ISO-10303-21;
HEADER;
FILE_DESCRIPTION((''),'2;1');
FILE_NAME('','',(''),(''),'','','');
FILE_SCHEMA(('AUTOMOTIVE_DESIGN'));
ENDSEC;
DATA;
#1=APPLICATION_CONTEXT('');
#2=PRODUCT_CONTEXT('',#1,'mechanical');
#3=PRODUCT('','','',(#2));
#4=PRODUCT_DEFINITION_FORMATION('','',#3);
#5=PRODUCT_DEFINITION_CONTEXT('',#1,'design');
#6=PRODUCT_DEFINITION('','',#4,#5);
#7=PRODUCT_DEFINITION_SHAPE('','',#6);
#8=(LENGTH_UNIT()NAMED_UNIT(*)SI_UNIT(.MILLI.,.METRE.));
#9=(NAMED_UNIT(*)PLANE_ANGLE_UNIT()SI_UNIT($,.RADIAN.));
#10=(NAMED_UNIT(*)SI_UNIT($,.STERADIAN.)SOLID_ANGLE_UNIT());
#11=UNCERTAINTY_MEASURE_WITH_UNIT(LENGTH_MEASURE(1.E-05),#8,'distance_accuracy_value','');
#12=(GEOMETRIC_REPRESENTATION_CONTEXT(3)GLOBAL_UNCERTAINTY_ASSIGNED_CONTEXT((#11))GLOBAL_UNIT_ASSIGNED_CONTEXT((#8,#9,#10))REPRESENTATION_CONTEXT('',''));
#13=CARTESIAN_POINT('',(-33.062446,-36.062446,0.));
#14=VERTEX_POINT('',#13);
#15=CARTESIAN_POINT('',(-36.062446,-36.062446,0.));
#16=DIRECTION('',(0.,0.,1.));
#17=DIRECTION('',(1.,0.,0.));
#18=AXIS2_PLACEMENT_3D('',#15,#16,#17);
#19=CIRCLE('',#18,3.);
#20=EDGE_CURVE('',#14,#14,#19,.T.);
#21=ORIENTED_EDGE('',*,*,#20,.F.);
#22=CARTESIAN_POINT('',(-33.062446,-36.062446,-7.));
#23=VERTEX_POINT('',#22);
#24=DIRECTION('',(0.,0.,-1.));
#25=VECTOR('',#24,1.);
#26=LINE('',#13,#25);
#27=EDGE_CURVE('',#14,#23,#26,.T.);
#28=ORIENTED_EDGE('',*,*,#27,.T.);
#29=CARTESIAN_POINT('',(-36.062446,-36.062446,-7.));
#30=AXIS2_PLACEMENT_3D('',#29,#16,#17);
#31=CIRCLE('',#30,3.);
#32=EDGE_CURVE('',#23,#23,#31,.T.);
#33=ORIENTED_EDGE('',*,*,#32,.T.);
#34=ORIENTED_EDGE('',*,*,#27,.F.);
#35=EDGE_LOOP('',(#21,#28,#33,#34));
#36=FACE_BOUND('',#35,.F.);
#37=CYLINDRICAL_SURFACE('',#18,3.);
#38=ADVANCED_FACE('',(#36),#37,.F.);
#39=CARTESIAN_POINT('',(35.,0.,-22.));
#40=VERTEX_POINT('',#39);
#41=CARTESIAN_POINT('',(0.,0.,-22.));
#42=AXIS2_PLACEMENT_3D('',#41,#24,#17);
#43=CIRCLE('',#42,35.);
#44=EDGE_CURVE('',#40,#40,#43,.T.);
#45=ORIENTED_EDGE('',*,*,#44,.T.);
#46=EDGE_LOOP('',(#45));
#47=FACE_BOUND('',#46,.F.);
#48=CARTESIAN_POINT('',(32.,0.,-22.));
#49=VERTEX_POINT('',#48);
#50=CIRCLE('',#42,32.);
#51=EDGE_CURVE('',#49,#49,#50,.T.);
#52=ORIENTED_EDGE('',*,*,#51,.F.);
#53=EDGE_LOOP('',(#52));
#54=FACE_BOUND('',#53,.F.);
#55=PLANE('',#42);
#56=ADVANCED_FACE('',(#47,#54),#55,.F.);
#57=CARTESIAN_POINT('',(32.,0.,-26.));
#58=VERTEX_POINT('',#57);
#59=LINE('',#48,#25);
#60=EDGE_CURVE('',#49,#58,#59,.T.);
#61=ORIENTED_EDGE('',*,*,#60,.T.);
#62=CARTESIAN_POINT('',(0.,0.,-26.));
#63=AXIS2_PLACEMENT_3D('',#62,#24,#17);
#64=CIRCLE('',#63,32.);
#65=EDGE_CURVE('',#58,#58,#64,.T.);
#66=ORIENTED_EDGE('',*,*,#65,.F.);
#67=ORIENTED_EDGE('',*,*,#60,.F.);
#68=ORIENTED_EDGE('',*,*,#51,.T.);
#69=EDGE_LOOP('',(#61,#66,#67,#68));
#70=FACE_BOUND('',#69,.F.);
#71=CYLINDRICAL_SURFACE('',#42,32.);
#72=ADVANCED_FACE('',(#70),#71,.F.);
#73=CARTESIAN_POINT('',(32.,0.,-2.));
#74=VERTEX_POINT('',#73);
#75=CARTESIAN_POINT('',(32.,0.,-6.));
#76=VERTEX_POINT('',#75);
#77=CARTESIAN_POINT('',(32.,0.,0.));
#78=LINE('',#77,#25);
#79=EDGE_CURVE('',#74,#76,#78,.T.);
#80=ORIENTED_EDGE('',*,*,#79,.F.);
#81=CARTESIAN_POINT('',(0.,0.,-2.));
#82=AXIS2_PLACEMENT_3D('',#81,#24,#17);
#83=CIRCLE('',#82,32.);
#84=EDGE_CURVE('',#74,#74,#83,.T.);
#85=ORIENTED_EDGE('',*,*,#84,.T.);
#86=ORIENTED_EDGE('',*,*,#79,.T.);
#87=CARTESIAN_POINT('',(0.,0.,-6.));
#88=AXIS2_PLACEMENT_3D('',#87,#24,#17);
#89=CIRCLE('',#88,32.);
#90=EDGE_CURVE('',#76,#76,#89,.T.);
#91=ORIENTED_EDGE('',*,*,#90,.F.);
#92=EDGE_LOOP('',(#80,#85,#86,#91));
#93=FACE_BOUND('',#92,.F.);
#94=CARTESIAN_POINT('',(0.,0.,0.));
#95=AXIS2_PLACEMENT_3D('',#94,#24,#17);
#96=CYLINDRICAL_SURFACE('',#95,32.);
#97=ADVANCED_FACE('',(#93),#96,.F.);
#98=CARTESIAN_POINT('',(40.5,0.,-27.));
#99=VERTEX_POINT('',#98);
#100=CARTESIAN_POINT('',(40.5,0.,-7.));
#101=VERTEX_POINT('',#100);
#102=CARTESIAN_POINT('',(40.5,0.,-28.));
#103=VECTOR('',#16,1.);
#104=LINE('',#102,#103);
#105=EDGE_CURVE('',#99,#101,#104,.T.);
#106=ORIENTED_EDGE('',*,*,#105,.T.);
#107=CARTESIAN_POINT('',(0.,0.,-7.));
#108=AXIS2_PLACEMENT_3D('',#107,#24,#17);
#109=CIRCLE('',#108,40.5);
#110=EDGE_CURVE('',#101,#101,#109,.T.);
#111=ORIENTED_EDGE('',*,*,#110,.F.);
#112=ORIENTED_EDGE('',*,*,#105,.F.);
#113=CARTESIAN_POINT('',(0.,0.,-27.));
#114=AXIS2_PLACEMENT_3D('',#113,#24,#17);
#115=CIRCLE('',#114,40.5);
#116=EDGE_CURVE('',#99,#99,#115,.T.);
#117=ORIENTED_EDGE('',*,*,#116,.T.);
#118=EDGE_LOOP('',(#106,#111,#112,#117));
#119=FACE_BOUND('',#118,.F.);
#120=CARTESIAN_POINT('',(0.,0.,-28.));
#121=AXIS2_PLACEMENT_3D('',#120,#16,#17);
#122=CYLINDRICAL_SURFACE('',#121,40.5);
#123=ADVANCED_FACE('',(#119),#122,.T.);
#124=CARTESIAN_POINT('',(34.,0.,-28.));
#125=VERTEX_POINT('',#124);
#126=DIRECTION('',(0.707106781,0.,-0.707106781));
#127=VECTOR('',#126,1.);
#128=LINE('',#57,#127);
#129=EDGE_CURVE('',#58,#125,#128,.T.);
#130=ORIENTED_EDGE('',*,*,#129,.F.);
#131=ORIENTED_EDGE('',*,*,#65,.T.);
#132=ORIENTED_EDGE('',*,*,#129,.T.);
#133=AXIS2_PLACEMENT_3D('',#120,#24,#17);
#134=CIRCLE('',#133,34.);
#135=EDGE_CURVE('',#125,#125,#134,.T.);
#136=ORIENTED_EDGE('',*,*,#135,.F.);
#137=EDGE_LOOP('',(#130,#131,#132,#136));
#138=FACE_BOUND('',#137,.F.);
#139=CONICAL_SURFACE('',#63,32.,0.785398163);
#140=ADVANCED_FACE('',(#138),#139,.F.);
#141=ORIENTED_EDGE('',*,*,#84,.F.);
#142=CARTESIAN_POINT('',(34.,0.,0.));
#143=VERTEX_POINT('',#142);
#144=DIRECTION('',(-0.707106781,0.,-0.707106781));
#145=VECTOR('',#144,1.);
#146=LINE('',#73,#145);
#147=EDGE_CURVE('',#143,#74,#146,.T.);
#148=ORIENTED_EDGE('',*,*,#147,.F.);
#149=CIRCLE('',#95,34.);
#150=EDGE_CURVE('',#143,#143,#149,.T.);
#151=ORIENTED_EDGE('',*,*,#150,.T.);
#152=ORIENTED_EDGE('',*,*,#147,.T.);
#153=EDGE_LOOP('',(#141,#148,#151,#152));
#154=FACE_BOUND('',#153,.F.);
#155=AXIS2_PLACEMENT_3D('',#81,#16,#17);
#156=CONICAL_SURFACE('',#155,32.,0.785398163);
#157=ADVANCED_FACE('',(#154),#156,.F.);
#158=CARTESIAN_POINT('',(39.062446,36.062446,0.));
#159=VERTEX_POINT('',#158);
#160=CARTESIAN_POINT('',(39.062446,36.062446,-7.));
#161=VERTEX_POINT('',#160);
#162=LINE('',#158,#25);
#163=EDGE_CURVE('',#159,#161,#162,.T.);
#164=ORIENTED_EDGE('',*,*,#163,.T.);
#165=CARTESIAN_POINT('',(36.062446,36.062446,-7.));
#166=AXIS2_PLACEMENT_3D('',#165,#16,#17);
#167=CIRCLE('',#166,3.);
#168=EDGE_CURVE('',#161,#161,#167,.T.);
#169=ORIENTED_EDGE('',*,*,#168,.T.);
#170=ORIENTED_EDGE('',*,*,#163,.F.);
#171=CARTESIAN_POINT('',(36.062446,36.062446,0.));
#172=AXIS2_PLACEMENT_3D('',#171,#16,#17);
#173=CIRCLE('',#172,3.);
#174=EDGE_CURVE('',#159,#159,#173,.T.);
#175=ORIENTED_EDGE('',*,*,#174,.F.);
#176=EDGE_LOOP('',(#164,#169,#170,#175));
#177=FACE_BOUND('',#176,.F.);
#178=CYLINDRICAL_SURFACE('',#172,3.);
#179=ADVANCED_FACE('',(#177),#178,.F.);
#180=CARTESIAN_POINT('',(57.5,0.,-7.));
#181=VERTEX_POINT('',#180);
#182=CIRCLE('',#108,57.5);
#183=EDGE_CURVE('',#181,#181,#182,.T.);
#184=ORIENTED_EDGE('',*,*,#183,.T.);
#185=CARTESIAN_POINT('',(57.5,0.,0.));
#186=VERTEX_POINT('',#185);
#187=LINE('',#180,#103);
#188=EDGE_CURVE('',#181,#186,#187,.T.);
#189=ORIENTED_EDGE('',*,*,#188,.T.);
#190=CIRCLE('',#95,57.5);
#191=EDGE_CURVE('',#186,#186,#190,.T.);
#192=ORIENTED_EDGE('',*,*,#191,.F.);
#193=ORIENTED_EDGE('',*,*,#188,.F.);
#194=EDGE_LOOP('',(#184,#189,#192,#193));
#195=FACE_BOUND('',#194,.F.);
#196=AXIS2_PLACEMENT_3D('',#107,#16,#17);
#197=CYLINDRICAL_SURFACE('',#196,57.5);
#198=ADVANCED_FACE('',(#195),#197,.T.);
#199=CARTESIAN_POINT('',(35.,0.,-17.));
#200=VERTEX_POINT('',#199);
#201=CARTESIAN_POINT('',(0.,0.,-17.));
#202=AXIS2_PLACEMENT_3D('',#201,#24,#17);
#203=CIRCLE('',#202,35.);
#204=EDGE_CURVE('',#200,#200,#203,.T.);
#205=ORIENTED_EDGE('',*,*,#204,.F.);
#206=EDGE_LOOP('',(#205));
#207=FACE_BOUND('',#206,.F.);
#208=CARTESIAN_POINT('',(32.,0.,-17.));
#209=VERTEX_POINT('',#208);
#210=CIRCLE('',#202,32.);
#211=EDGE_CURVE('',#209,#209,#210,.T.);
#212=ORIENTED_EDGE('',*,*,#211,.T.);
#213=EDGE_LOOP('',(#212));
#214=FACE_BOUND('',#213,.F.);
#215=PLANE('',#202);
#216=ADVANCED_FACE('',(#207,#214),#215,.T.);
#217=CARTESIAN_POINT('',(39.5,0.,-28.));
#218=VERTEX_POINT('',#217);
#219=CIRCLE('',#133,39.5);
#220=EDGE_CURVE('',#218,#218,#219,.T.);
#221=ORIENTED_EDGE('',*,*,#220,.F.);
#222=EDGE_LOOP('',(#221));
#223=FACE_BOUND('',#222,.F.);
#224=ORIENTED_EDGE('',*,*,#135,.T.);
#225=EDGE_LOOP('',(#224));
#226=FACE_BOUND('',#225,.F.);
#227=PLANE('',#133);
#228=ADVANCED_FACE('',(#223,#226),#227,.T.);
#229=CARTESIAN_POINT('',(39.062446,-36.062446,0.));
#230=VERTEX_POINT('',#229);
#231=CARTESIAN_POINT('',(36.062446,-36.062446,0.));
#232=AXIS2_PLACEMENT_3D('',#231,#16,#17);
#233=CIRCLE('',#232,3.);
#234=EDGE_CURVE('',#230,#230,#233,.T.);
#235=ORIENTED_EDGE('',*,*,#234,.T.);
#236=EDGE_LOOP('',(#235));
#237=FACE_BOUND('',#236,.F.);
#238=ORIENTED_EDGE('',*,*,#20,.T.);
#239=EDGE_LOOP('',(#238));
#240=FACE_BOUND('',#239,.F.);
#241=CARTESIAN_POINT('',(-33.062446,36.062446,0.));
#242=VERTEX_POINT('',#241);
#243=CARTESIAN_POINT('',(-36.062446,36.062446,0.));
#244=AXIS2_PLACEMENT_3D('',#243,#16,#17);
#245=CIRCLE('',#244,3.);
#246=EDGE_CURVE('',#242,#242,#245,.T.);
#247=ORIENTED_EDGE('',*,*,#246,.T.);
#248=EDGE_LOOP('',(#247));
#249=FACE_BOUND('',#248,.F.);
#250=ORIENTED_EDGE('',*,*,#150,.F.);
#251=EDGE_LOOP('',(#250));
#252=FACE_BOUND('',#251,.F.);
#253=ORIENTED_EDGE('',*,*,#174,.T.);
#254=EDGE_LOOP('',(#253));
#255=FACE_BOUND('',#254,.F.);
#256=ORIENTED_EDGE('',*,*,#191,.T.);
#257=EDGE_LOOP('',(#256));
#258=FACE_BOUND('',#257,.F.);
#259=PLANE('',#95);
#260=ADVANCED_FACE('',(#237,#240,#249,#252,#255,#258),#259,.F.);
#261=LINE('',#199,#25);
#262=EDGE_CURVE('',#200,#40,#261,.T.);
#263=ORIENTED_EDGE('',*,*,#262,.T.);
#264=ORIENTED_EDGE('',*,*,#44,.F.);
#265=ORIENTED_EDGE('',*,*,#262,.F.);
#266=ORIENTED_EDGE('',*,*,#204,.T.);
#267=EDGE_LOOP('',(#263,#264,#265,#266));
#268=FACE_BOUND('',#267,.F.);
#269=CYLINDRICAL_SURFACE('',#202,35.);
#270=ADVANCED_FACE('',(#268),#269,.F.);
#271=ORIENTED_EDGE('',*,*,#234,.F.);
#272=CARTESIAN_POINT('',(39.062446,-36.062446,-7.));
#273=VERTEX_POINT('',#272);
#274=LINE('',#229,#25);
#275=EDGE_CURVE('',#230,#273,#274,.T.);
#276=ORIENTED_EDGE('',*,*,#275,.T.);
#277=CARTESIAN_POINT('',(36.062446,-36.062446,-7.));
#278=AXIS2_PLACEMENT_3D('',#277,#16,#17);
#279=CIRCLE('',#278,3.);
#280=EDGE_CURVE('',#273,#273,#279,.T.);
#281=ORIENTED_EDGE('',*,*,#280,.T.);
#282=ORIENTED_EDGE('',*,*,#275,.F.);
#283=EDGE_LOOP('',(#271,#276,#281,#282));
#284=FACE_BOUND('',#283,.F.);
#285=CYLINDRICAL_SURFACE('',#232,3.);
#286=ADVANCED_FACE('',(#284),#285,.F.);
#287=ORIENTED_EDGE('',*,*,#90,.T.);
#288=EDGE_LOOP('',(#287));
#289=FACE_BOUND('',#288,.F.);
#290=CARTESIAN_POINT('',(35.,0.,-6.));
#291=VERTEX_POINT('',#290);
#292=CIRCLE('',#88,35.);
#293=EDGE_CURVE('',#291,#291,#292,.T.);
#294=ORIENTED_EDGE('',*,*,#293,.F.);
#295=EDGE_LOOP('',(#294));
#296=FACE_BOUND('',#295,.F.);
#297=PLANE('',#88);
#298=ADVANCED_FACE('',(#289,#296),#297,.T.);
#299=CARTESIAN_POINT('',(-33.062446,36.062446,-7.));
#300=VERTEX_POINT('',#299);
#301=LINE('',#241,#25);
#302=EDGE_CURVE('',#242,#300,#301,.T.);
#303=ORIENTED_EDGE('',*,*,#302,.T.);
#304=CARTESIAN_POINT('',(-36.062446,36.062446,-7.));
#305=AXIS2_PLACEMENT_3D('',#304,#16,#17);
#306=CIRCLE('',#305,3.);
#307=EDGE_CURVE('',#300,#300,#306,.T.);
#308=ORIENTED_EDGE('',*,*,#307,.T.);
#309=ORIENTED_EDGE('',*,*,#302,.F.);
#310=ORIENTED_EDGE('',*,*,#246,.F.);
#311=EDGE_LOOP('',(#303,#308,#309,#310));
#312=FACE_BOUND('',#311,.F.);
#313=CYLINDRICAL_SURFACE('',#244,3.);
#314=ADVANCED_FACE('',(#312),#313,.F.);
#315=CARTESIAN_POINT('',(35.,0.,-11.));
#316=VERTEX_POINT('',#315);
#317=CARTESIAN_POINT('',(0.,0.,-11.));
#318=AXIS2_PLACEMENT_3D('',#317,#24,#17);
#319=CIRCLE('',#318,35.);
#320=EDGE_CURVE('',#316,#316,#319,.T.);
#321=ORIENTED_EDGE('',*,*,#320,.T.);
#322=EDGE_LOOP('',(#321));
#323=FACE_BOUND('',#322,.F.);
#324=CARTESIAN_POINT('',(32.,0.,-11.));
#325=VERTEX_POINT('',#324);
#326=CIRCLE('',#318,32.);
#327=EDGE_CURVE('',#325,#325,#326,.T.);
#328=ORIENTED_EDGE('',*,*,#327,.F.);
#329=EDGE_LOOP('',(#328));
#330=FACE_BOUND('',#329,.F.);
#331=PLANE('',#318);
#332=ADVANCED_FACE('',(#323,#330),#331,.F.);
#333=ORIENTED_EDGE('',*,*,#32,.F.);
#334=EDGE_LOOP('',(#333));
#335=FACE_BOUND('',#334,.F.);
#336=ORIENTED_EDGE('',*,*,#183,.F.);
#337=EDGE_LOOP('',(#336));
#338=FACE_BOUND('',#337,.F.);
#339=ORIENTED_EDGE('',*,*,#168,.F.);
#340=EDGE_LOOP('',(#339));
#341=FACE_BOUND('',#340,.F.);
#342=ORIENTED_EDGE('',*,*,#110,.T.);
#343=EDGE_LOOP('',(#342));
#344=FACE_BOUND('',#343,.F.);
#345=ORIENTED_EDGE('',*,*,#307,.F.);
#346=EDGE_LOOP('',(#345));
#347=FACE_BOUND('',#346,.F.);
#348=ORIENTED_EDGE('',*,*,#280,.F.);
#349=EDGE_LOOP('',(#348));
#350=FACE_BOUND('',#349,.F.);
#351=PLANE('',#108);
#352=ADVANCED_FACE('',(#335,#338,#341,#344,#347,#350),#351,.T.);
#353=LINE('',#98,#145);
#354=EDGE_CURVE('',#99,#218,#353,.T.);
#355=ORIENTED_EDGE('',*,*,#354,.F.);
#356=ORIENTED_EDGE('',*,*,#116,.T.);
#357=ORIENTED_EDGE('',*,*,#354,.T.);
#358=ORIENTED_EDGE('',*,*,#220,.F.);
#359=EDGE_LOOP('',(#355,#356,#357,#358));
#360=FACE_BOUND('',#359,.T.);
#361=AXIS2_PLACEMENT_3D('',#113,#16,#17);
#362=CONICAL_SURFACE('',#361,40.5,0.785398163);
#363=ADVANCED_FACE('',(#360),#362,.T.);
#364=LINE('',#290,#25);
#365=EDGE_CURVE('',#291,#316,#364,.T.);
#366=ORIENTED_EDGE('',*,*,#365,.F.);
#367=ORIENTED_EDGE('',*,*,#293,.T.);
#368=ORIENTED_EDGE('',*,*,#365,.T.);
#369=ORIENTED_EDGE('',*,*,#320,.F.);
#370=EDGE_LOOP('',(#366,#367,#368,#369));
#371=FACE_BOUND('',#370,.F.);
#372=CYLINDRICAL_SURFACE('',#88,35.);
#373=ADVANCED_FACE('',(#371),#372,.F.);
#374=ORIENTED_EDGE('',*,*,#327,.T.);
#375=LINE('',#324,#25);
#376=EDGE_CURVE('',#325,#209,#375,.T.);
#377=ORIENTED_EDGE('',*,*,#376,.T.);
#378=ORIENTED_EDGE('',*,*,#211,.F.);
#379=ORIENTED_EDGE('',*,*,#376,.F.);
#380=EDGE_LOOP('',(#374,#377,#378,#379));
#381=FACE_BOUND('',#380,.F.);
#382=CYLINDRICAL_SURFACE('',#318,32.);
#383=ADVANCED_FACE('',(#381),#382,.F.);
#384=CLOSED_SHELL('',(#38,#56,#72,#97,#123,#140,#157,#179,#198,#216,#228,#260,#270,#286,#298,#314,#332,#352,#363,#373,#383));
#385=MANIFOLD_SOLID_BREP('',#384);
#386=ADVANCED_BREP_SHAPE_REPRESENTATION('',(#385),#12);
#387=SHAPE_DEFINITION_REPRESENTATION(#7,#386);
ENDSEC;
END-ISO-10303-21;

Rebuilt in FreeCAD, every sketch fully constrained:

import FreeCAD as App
import Part
import Sketcher


def edges_at(feature, points):
    """Names of the edges that pass closest to the given points."""
    edges = feature.Shape.Edges
    near = lambda p: min(range(len(edges)), key=lambda i: edges[i].distToShape(Part.Vertex(*p))[0])
    return sorted({f"Edge{near(p) + 1}" for p in points})

doc = App.newDocument("Part")
body = doc.addObject("PartDesign::Body", "Body")

sketch1 = body.newObject("Sketcher::SketchObject", "Sketch")
sketch1.AttachmentSupport = (doc.getObject("XZ_Plane"), [""])
sketch1.MapMode = "FlatFace"
sketch1.addGeometry([
    Part.LineSegment(App.Vector(57.5, 0, 0), App.Vector(32, 0, 0)),
    Part.LineSegment(App.Vector(32, 0, 0), App.Vector(32, -6, 0)),
    Part.LineSegment(App.Vector(32, -6, 0), App.Vector(35, -6, 0)),
    Part.LineSegment(App.Vector(35, -6, 0), App.Vector(35, -11, 0)),
    Part.LineSegment(App.Vector(35, -11, 0), App.Vector(32, -11, 0)),
    Part.LineSegment(App.Vector(32, -11, 0), App.Vector(32, -17, 0)),
    Part.LineSegment(App.Vector(32, -17, 0), App.Vector(35, -17, 0)),
    Part.LineSegment(App.Vector(35, -17, 0), App.Vector(35, -22, 0)),
    Part.LineSegment(App.Vector(35, -22, 0), App.Vector(32, -22, 0)),
    Part.LineSegment(App.Vector(32, -22, 0), App.Vector(32, -28, 0)),
    Part.LineSegment(App.Vector(32, -28, 0), App.Vector(40.5, -28, 0)),
    Part.LineSegment(App.Vector(40.5, -28, 0), App.Vector(40.5, -7, 0)),
    Part.LineSegment(App.Vector(40.5, -7, 0), App.Vector(57.5, -7, 0)),
    Part.LineSegment(App.Vector(57.5, -7, 0), App.Vector(57.5, 0, 0)),
], False)
sketch1.addConstraint([
    Sketcher.Constraint("Coincident", 0, 2, 1, 1),
    Sketcher.Constraint("Coincident", 1, 2, 2, 1),
    Sketcher.Constraint("Coincident", 2, 2, 3, 1),
    Sketcher.Constraint("Coincident", 3, 2, 4, 1),
    Sketcher.Constraint("Coincident", 4, 2, 5, 1),
    Sketcher.Constraint("Coincident", 5, 2, 6, 1),
    Sketcher.Constraint("Coincident", 6, 2, 7, 1),
    Sketcher.Constraint("Coincident", 7, 2, 8, 1),
    Sketcher.Constraint("Coincident", 8, 2, 9, 1),
    Sketcher.Constraint("Coincident", 9, 2, 10, 1),
    Sketcher.Constraint("Coincident", 10, 2, 11, 1),
    Sketcher.Constraint("Coincident", 11, 2, 12, 1),
    Sketcher.Constraint("Coincident", 12, 2, 13, 1),
    Sketcher.Constraint("Coincident", 13, 2, 0, 1),
    Sketcher.Constraint("Horizontal", 0),
    Sketcher.Constraint("Vertical", 1),
    Sketcher.Constraint("Horizontal", 2),
    Sketcher.Constraint("Vertical", 3),
    Sketcher.Constraint("Horizontal", 4),
    Sketcher.Constraint("Vertical", 5),
    Sketcher.Constraint("Horizontal", 6),
    Sketcher.Constraint("Vertical", 7),
    Sketcher.Constraint("Horizontal", 8),
    Sketcher.Constraint("Vertical", 9),
    Sketcher.Constraint("Horizontal", 10),
    Sketcher.Constraint("Vertical", 11),
    Sketcher.Constraint("Horizontal", 12),
    Sketcher.Constraint("Vertical", 13),
    Sketcher.Constraint("PointOnObject", 0, 2, -1),
    Sketcher.Constraint("Vertical", 1, 2, 4, 2),
    Sketcher.Constraint("Vertical", 3, 2, 6, 2),
    Sketcher.Constraint("Vertical", 5, 2, 8, 2),
    Sketcher.Constraint("Equal", 1, 5),
    Sketcher.Constraint("Equal", 3, 7),
    Sketcher.Constraint("Equal", 5, 9),
    Sketcher.Constraint("DistanceX", 2, 1, 2, 2, 3.0),
    Sketcher.Constraint("DistanceX", 12, 1, 12, 2, 17.0),
    Sketcher.Constraint("DistanceY", 1, 2, 1, 1, 6.0),
    Sketcher.Constraint("DistanceY", 3, 2, 3, 1, 5.0),
    Sketcher.Constraint("DistanceY", 11, 1, 11, 2, 21.0),
    Sketcher.Constraint("DistanceX", 0, 2, 0, 1, 25.5),
    Sketcher.Constraint("DistanceX", -1, 1, 0, 2, 32.0),
])
revolution = body.newObject("PartDesign::Revolution", "Revolution")
revolution.Profile = sketch1
revolution.ReferenceAxis = (sketch1, ["V_Axis"])
revolution.Angle = 360
doc.recompute()

chamfer = body.newObject("PartDesign::Chamfer", "Chamfer")
chamfer.Base = (revolution, edges_at(revolution, [(-32, 0, 0), (-32, 0, -28)]))
chamfer.Size = 2
doc.recompute()

chamfer2 = body.newObject("PartDesign::Chamfer", "Chamfer001")
chamfer2.Base = (chamfer, edges_at(chamfer, [(-40.5, 0, -28)]))
chamfer2.Size = 1

sketch2 = body.newObject("Sketcher::SketchObject", "Sketch001")
sketch2.AttachmentSupport = (doc.getObject("XY_Plane"), [""])
sketch2.MapMode = "FlatFace"
sketch2.addGeometry([
    Part.Circle(App.Vector(-36.1, 36.1, 0), App.Vector(0, 0, 1), 3),
    Part.Circle(App.Vector(36.1, 36.1, 0), App.Vector(0, 0, 1), 3),
    Part.Circle(App.Vector(36.1, -36.1, 0), App.Vector(0, 0, 1), 3),
    Part.Circle(App.Vector(-36.1, -36.1, 0), App.Vector(0, 0, 1), 3),
], False)
sketch2.addConstraint([
    Sketcher.Constraint("Equal", 0, 1),
    Sketcher.Constraint("Equal", 1, 2),
    Sketcher.Constraint("Equal", 2, 3),
    Sketcher.Constraint("Symmetric", 0, 3, 2, 3, -1, 1),
    Sketcher.Constraint("Symmetric", 1, 3, 3, 3, -1, 1),
    Sketcher.Constraint("Symmetric", 0, 3, 1, 3, -2),
    Sketcher.Constraint("Diameter", 0, 6.0),
    Sketcher.Constraint("DistanceX", 0, 3, -1, 1, 36.062446),
    Sketcher.Constraint("DistanceY", -1, 1, 0, 3, 36.062446),
])
pocket1 = body.newObject("PartDesign::Pocket", "Pocket")
pocket1.Profile = sketch2
pocket1.Length = 25

doc.recompute()
